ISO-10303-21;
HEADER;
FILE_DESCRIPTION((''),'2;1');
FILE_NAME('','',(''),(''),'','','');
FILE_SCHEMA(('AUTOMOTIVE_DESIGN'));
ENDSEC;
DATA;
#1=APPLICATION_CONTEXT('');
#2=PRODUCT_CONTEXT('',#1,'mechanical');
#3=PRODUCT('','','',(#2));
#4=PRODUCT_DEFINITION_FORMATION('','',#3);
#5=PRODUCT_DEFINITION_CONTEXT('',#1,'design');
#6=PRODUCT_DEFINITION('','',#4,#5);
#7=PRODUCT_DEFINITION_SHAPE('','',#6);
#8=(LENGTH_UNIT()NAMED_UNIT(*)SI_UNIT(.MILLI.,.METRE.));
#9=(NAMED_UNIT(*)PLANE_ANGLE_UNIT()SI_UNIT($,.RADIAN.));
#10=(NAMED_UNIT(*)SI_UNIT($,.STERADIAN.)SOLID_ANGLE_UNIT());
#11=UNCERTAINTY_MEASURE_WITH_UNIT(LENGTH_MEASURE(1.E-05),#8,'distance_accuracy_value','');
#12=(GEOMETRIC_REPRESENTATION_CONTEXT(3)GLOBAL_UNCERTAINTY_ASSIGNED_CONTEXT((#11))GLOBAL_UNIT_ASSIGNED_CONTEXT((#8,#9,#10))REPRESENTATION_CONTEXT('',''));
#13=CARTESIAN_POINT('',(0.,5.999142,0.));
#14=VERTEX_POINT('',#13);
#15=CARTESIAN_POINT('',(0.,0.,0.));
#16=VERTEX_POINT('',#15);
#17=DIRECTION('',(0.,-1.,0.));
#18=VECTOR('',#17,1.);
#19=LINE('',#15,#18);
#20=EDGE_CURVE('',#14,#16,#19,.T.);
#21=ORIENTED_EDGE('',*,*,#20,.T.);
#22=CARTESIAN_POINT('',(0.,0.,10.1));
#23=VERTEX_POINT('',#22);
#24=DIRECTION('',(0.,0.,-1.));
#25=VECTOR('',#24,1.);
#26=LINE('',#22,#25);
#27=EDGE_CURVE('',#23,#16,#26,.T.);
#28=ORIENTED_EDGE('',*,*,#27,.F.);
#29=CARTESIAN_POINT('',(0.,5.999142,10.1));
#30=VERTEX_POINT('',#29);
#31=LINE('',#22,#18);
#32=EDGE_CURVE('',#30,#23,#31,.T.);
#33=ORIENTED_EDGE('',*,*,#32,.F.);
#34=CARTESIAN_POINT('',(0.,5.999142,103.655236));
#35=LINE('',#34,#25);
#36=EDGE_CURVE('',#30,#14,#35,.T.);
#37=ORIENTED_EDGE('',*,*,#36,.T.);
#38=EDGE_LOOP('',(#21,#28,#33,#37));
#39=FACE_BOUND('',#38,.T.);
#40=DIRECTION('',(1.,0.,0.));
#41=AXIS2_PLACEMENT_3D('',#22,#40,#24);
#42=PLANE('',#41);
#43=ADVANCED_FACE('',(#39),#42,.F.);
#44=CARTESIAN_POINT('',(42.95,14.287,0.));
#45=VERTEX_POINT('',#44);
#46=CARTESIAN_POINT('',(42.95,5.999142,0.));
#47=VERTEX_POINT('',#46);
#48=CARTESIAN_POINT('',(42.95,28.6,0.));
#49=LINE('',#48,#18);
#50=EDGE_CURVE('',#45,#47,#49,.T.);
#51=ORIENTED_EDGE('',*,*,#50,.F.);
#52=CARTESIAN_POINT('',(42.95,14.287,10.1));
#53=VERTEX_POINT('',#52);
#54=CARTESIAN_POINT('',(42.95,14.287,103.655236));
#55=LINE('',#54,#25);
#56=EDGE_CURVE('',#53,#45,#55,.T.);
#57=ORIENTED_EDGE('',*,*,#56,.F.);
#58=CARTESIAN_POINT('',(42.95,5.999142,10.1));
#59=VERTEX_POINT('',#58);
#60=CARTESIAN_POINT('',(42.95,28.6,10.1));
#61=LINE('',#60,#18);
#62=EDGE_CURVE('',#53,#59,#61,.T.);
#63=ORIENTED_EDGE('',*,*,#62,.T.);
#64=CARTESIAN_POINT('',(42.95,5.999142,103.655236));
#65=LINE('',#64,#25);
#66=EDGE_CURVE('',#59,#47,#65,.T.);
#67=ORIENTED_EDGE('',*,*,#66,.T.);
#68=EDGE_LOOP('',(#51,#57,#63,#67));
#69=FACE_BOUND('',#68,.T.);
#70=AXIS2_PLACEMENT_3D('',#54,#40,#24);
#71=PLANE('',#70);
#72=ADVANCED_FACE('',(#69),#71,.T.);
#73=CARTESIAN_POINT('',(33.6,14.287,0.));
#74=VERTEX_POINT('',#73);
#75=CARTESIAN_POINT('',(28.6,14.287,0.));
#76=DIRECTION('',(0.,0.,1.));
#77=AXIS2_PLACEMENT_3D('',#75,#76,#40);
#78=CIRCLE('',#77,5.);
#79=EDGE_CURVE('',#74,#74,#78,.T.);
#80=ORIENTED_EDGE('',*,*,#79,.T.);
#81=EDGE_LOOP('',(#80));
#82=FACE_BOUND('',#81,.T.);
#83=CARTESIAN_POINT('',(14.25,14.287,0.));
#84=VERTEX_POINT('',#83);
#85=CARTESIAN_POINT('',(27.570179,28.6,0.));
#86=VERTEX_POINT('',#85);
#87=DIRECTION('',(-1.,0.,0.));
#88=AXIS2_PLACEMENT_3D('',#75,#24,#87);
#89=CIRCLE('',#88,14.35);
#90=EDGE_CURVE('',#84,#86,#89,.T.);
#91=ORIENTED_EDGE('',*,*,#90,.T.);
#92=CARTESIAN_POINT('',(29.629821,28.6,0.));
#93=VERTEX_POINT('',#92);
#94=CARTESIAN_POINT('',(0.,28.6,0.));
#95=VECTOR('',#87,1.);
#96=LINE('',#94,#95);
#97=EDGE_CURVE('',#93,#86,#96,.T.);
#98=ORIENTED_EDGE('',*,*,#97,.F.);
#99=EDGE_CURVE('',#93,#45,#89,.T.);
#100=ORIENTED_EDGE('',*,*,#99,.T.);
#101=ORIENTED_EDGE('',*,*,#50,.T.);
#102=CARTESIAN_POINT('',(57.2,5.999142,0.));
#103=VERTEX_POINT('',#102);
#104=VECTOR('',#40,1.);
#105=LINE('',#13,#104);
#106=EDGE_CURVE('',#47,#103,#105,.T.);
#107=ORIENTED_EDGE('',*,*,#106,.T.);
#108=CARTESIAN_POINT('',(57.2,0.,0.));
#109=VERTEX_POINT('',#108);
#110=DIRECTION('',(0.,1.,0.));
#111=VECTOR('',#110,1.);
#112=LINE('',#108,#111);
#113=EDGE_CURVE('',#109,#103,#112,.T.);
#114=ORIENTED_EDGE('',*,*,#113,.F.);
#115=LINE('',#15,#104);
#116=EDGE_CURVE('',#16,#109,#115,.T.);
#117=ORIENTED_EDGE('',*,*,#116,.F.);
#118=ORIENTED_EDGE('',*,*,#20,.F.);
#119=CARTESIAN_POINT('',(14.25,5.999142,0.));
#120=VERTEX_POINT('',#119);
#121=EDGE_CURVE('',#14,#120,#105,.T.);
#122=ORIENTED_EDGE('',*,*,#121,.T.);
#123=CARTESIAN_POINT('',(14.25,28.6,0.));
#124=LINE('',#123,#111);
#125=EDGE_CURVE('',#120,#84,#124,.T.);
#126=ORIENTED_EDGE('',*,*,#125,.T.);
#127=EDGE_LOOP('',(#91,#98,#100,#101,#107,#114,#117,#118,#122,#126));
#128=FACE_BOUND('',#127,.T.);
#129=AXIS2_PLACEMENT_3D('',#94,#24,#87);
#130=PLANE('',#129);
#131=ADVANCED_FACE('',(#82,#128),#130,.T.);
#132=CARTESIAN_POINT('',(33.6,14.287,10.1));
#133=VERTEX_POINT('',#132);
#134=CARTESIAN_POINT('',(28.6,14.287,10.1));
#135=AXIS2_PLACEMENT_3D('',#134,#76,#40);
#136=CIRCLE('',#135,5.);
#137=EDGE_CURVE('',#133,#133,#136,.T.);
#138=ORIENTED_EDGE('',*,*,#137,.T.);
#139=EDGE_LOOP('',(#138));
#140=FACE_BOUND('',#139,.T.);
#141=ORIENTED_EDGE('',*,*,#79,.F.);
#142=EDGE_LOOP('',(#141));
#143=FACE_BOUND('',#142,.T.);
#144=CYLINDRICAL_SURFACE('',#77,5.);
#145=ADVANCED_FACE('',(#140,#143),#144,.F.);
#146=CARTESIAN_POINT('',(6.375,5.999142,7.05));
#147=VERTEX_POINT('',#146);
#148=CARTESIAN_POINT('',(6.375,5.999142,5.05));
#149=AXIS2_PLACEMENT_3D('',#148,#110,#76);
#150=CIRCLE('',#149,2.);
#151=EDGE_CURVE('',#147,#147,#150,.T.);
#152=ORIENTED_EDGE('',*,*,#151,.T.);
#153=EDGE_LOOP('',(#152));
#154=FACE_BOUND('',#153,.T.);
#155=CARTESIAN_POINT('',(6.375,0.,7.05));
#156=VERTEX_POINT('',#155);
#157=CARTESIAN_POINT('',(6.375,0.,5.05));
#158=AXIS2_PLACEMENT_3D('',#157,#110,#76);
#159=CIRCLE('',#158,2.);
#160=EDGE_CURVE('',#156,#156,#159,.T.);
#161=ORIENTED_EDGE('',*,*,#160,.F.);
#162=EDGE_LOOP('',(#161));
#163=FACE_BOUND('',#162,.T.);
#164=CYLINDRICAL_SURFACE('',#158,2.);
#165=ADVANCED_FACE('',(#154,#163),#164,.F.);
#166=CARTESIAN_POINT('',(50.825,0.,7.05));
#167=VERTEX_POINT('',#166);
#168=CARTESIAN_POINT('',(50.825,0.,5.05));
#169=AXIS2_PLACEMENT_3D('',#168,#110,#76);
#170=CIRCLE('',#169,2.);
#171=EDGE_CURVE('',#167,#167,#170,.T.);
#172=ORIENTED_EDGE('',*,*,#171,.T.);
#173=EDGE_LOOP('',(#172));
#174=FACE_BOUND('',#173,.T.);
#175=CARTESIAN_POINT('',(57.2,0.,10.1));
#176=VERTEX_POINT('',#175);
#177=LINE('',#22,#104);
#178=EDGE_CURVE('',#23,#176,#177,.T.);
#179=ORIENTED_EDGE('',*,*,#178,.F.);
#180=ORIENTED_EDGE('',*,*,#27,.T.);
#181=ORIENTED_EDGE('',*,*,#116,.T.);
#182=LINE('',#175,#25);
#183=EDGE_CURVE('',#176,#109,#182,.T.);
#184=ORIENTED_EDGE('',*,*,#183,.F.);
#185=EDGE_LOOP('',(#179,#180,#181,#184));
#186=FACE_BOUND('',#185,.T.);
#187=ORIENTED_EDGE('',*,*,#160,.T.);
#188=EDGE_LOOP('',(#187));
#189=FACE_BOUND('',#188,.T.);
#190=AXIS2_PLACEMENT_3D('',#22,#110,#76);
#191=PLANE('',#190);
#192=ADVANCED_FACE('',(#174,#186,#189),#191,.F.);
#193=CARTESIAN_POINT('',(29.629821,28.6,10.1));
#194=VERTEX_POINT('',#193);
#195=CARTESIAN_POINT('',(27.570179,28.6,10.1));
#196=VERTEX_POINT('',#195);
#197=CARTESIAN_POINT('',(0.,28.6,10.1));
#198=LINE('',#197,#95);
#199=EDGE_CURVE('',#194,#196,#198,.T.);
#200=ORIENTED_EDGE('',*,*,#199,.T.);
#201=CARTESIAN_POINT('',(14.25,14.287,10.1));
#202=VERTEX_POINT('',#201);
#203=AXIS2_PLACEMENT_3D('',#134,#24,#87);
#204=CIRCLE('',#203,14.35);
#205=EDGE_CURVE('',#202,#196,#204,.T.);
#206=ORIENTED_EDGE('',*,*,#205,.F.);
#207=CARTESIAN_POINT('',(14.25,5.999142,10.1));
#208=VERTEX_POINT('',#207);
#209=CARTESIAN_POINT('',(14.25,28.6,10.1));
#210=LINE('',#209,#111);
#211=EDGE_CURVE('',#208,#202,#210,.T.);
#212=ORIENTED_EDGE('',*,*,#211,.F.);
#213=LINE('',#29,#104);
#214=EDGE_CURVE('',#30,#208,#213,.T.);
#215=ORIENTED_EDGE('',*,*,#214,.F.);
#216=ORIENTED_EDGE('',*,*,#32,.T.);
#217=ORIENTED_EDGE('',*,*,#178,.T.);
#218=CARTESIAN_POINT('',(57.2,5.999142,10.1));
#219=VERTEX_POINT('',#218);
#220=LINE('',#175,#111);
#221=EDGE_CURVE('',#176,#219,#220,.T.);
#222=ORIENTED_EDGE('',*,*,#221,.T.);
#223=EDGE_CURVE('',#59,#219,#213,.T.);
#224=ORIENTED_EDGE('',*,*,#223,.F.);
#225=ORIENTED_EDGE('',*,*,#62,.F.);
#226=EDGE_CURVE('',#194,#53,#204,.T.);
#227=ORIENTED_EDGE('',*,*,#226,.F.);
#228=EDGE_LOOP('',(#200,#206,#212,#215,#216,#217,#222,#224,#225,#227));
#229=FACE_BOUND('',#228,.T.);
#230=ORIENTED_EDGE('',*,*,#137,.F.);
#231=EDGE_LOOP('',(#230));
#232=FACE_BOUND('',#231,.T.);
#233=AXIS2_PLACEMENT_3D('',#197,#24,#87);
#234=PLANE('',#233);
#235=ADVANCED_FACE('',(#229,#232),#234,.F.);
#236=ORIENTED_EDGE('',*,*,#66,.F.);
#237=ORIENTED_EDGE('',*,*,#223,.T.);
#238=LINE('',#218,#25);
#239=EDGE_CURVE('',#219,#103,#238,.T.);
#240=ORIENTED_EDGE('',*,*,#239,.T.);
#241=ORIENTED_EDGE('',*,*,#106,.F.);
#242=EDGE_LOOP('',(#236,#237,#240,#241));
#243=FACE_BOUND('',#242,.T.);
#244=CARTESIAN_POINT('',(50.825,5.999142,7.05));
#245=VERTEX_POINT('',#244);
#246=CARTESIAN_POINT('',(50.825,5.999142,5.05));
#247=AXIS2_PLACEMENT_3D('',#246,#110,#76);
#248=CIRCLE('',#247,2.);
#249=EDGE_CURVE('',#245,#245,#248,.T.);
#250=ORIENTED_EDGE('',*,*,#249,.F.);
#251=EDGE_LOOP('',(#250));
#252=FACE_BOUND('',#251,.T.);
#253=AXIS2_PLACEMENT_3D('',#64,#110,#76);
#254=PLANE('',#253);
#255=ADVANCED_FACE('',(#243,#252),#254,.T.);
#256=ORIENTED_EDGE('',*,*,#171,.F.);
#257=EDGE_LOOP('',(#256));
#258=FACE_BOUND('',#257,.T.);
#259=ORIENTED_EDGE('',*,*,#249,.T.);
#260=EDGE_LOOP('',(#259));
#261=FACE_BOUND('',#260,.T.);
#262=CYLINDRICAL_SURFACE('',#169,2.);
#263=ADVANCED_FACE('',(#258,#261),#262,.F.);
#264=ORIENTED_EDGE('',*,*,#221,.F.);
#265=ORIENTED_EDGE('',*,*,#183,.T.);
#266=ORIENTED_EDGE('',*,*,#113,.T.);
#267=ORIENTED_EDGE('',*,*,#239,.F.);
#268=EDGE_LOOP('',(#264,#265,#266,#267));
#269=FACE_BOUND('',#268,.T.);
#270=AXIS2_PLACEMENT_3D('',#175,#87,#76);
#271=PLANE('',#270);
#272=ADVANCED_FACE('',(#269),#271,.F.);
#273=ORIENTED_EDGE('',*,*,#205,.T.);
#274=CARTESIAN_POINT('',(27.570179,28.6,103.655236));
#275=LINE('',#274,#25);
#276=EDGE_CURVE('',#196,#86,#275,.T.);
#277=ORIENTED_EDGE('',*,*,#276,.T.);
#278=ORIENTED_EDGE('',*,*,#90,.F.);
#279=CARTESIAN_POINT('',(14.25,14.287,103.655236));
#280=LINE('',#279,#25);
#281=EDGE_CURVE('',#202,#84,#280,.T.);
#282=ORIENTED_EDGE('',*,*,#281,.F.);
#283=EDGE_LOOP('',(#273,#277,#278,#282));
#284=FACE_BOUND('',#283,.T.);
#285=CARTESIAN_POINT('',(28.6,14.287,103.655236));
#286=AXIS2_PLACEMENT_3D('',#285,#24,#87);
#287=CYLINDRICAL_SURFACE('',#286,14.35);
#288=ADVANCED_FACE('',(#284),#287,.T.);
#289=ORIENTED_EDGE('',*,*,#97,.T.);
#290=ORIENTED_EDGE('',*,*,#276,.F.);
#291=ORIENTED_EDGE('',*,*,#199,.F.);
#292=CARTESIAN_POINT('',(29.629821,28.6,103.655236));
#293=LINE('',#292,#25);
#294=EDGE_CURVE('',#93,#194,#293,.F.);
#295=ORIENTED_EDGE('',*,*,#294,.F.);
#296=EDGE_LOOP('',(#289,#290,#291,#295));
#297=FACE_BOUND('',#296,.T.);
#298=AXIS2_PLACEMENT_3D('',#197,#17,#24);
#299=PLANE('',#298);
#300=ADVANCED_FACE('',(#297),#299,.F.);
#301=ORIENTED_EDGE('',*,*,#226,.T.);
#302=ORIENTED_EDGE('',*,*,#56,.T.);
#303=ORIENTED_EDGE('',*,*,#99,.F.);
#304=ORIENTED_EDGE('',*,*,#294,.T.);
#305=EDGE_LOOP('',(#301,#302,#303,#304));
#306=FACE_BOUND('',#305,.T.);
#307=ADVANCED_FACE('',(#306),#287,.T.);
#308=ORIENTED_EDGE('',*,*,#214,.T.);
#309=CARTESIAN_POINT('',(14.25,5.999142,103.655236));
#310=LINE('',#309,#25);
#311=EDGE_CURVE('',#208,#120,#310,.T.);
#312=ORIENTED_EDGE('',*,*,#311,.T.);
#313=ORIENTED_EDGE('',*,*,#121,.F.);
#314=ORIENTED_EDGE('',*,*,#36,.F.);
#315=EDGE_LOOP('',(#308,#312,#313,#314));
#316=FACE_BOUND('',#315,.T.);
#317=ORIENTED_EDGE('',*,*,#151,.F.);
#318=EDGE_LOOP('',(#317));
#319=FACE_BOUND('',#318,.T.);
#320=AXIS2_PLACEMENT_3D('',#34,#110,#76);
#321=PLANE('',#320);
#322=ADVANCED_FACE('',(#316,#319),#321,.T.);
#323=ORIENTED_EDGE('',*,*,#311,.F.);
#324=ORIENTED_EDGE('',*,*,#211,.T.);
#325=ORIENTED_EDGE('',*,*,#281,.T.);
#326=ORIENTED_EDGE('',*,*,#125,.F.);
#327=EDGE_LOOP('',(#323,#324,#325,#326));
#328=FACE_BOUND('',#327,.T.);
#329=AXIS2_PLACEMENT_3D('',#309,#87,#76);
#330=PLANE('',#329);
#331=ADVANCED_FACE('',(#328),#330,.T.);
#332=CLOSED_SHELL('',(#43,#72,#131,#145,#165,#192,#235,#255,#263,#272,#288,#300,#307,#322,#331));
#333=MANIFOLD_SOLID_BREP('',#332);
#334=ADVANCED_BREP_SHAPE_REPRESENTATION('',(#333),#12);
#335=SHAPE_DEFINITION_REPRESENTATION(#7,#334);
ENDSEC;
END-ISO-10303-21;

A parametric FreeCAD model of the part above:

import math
import FreeCAD as App
import Part
import Sketcher
Q = App.Units.Quantity


def add_polygon(sketch, points):
    """Adds a closed chain of lines whose ends are joined by coincident constraints."""
    first, n = sketch.GeometryCount, len(points)
    for a, b in zip(points, points[1:] + points[:1]):
        sketch.addGeometry(Part.LineSegment(App.Vector(*a, 0), App.Vector(*b, 0)), False)
    for i in range(n):
        sketch.addConstraint(Sketcher.Constraint("Coincident", first + i, 2, first + (i + 1) % n, 1))

doc = App.newDocument("Part")
body = doc.addObject("PartDesign::Body", "Body")

sketch1 = doc.addObject("Sketcher::SketchObject", "Sketch")
body.addObject(sketch1)
sketch1.AttachmentSupport = (doc.XY_Plane, [""])
sketch1.MapMode = "FlatFace"
add_polygon(sketch1, [(0, 28.6), (0, 0), (57.2, 0), (57.2, 28.6)])
sketch1.addConstraint([
    Sketcher.Constraint("Vertical", 0),
    Sketcher.Constraint("Horizontal", 1),
    Sketcher.Constraint("Vertical", 2),
    Sketcher.Constraint("Horizontal", 3),
    Sketcher.Constraint("Coincident", 0, 2, -1, 1),
    Sketcher.Constraint("DistanceX", 1, 1, 1, 2, Q("57.2 mm")),
    Sketcher.Constraint("DistanceY", 0, 2, 0, 1, Q("28.6 mm")),
])
pad1 = doc.addObject("PartDesign::Pad", "Pad")
body.addObject(pad1)
pad1.Profile = sketch1
pad1.Length = 10.1

sketch2 = doc.addObject("Sketcher::SketchObject", "Sketch001")
body.addObject(sketch2)
sketch2.AttachmentSupport = (doc.XY_Plane, [""])
sketch2.MapMode = "FlatFace"
sketch2.AttachmentOffset = App.Placement(App.Vector(0, 0, 10.1), App.Rotation())
sketch2.addGeometry(Part.Circle(App.Vector(28.6, 14.287, 0), App.Vector(0, 0, 1), 5), False)
sketch2.addConstraint([
    Sketcher.Constraint("Diameter", 0, Q("10 mm")),
    Sketcher.Constraint("DistanceX", -1, 1, 0, 3, Q("28.6 mm")),
    Sketcher.Constraint("DistanceY", -1, 1, 0, 3, Q("14.287 mm")),
])
pocket1 = doc.addObject("PartDesign::Pocket", "Pocket")
body.addObject(pocket1)
pocket1.Profile = sketch2
pocket1.Type = "ThroughAll"

sketch3 = doc.addObject("Sketcher::SketchObject", "Sketch002")
body.addObject(sketch3)
sketch3.AttachmentSupport = (doc.XY_Plane, [""])
sketch3.MapMode = "FlatFace"
sketch3.AttachmentOffset = App.Placement(App.Vector(0, 0, 10.1), App.Rotation())
sketch3.addGeometry([
    Part.LineSegment(App.Vector(-133.041822, 5.999142, 0), App.Vector(14.25, 5.999142, 0)),
    Part.LineSegment(App.Vector(14.25, 5.999142, 0), App.Vector(14.25, 14.287, 0)),
    Part.ArcOfCircle(Part.Circle(App.Vector(28.6, 14.287, 0), App.Vector(0, 0, 1), 14.35), math.radians(0), math.radians(180)),
    Part.LineSegment(App.Vector(42.95, 14.287, 0), App.Vector(42.95, 5.999142, 0)),
    Part.LineSegment(App.Vector(42.95, 5.999142, 0), App.Vector(190.260907, 5.999142, 0)),
    Part.LineSegment(App.Vector(190.260907, 5.999142, 0), App.Vector(190.260907, 272.082786, 0)),
    Part.LineSegment(App.Vector(190.260907, 272.082786, 0), App.Vector(-133.041822, 272.082786, 0)),
    Part.LineSegment(App.Vector(-133.041822, 272.082786, 0), App.Vector(-133.041822, 5.999142, 0)),
], False)
sketch3.addConstraint([
    Sketcher.Constraint("Coincident", 0, 2, 1, 1),
    Sketcher.Constraint("Tangent", 1, 2, 2, 2),
    Sketcher.Constraint("Tangent", 2, 1, 3, 1),
    Sketcher.Constraint("Coincident", 3, 2, 4, 1),
    Sketcher.Constraint("Coincident", 4, 2, 5, 1),
    Sketcher.Constraint("Coincident", 5, 2, 6, 1),
    Sketcher.Constraint("Coincident", 6, 2, 7, 1),
    Sketcher.Constraint("Coincident", 7, 2, 0, 1),
    Sketcher.Constraint("Horizontal", 0),
    Sketcher.Constraint("Vertical", 1),
    Sketcher.Constraint("Vertical", 3),
    Sketcher.Constraint("Horizontal", 4),
    Sketcher.Constraint("Vertical", 5),
    Sketcher.Constraint("Horizontal", 6),
    Sketcher.Constraint("Vertical", 7),
    Sketcher.Constraint("Horizontal", 0, 2, 3, 2),
    Sketcher.Constraint("Radius", 2, Q("14.35 mm")),
    Sketcher.Constraint("DistanceX", -1, 1, 2, 3, Q("28.6 mm")),
    Sketcher.Constraint("DistanceY", -1, 1, 2, 3, Q("14.287 mm")),
    Sketcher.Constraint("DistanceX", 6, 2, 6, 1, Q("323.302729 mm")),
    Sketcher.Constraint("DistanceY", 1, 1, 1, 2, Q("8.287858 mm")),
    Sketcher.Constraint("DistanceX", 0, 1, 0, 2, Q("147.291822 mm")),
    Sketcher.Constraint("DistanceY", 5, 1, 5, 2, Q("266.083644 mm")),
])
pocket2 = doc.addObject("PartDesign::Pocket", "Pocket001")
body.addObject(pocket2)
pocket2.Profile = sketch3
pocket2.Type = "ThroughAll"
pocket2.Midplane = True

sketch4 = doc.addObject("Sketcher::SketchObject", "Sketch003")
body.addObject(sketch4)
sketch4.AttachmentSupport = (doc.XZ_Plane, [""])
sketch4.MapMode = "FlatFace"
sketch4.AttachmentOffset = App.Placement(App.Vector(0, 0, -5.999142), App.Rotation())
sketch4.addGeometry([
    Part.Circle(App.Vector(6.375, 5.05, 0), App.Vector(0, 0, 1), 2),
    Part.Circle(App.Vector(50.825, 5.05, 0), App.Vector(0, 0, 1), 2),
], False)
sketch4.addConstraint([
    Sketcher.Constraint("Equal", 0, 1),
    Sketcher.Constraint("Horizontal", 0, 3, 1, 3),
    Sketcher.Constraint("Diameter", 0, Q("4 mm")),
    Sketcher.Constraint("DistanceY", -1, 1, 0, 3, Q("5.05 mm")),
    Sketcher.Constraint("DistanceX", 0, 3, 1, 3, Q("44.45 mm")),
    Sketcher.Constraint("DistanceX", -1, 1, 0, 3, Q("6.375 mm")),
])
pocket3 = doc.addObject("PartDesign::Pocket", "Pocket002")
body.addObject(pocket3)
pocket3.Profile = sketch4
pocket3.Type = "ThroughAll"
pocket3.Reversed = True

doc.recompute()
